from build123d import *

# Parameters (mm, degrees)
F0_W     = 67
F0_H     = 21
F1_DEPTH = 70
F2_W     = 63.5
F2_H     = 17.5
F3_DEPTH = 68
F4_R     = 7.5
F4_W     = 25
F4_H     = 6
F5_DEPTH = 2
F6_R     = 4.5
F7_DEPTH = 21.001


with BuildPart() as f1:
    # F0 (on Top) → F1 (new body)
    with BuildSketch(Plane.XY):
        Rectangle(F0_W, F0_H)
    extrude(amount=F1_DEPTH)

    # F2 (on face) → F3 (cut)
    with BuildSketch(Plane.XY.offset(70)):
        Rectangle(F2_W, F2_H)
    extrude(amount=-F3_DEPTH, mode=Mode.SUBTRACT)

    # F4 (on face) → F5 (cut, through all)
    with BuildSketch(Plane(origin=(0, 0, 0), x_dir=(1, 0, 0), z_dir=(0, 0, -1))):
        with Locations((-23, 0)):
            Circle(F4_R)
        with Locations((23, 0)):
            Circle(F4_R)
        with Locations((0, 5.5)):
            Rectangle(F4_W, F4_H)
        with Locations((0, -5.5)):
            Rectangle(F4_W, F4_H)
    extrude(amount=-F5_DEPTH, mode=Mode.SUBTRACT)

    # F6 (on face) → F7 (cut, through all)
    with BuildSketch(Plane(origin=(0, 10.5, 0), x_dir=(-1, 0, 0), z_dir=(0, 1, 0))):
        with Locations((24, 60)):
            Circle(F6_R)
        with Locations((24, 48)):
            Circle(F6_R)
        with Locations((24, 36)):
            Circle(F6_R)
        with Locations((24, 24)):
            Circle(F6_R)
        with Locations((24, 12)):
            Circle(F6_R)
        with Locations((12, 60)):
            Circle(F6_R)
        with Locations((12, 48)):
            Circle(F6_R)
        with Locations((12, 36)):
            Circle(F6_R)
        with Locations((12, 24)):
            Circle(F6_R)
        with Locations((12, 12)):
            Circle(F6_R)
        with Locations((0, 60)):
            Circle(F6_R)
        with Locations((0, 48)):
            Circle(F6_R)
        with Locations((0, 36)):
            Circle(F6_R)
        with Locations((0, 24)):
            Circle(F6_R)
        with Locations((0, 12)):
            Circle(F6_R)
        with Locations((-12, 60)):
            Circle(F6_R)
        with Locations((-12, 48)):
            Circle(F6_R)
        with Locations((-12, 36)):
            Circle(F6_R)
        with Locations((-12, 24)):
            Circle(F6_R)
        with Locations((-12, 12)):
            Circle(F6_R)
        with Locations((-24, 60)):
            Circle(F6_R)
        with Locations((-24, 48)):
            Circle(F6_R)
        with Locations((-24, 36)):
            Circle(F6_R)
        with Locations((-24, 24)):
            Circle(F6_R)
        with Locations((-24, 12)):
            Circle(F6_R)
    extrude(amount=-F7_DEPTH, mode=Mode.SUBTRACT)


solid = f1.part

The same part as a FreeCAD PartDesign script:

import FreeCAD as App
import Part
import Sketcher
from FreeCAD import Vector
Q = App.Units.Quantity

doc = App.newDocument("Part")
params = doc.addObject("Spreadsheet::Sheet", "Params")
for row, (alias, value) in enumerate([
    ("sketch1_width", "67 mm"),
    ("sketch1_height", "21 mm"),
    ("pad1_length", "70 mm"),
    ("sketch2_width", "63.5 mm"),
    ("sketch2_height", "17.5 mm"),
    ("pocket1_length", "68 mm"),
    ("sketch3_diameter", "15 mm"),
    ("sketch3_width", "25 mm"),
    ("sketch3_height", "6 mm"),
    ("sketch4_diameter", "9 mm"),
], start=1):
    params.set(f"A{row}", alias)
    params.set(f"B{row}", "=" + value)
    params.setAlias(f"B{row}", alias)

body = doc.addObject("PartDesign::Body", "Body")

# Sketch on XY plane
sketch1 = doc.addObject("Sketcher::SketchObject", "Sketch")
body.addObject(sketch1)
sketch1.AttachmentSupport = (doc.XY_Plane, [""])
sketch1.MapMode = "FlatFace"
sketch1.addGeometry(Part.LineSegment(Vector(-34, 10, 0), Vector(-34, -10, 0)), False)
sketch1.addGeometry(Part.LineSegment(Vector(-34, -10, 0), Vector(34, -10, 0)), False)
sketch1.addGeometry(Part.LineSegment(Vector(34, -10, 0), Vector(34, 10, 0)), False)
sketch1.addGeometry(Part.LineSegment(Vector(34, 10, 0), Vector(-34, 10, 0)), False)
sketch1.addConstraint(Sketcher.Constraint("Coincident", 0, 2, 1, 1))
sketch1.addConstraint(Sketcher.Constraint("Coincident", 1, 2, 2, 1))
sketch1.addConstraint(Sketcher.Constraint("Coincident", 2, 2, 3, 1))
sketch1.addConstraint(Sketcher.Constraint("Coincident", 3, 2, 0, 1))
sketch1.addConstraint(Sketcher.Constraint("Vertical", 0))
sketch1.addConstraint(Sketcher.Constraint("Horizontal", 1))
sketch1.addConstraint(Sketcher.Constraint("Vertical", 2))
sketch1.addConstraint(Sketcher.Constraint("Horizontal", 3))
sketch1.addConstraint(Sketcher.Constraint("Symmetric", 0, 2, 2, 2, -1, 1))
sketch1.addConstraint(Sketcher.Constraint("DistanceX", 1, 1, 1, 2, Q("67 mm")))
sketch1.addConstraint(Sketcher.Constraint("DistanceY", 0, 2, 0, 1, Q("21 mm")))
sketch1.setExpression("Constraints[9]", "Params.sketch1_width")
sketch1.setExpression("Constraints[10]", "Params.sketch1_height")
pad1 = doc.addObject("PartDesign::Pad", "Pad")
body.addObject(pad1)
pad1.Profile = sketch1
pad1.setExpression("Length", "Params.pad1_length")

# Sketch on XY plane
sketch2 = doc.addObject("Sketcher::SketchObject", "Sketch001")
body.addObject(sketch2)
sketch2.AttachmentSupport = (doc.XY_Plane, [""])
sketch2.MapMode = "FlatFace"
sketch2.AttachmentOffset = App.Placement(Vector(0, 0, 70), App.Rotation())
sketch2.addGeometry(Part.LineSegment(Vector(-32, 9, 0), Vector(-32, -9, 0)), False)
sketch2.addGeometry(Part.LineSegment(Vector(-32, -9, 0), Vector(32, -9, 0)), False)
sketch2.addGeometry(Part.LineSegment(Vector(32, -9, 0), Vector(32, 9, 0)), False)
sketch2.addGeometry(Part.LineSegment(Vector(32, 9, 0), Vector(-32, 9, 0)), False)
sketch2.addConstraint(Sketcher.Constraint("Coincident", 0, 2, 1, 1))
sketch2.addConstraint(Sketcher.Constraint("Coincident", 1, 2, 2, 1))
sketch2.addConstraint(Sketcher.Constraint("Coincident", 2, 2, 3, 1))
sketch2.addConstraint(Sketcher.Constraint("Coincident", 3, 2, 0, 1))
sketch2.addConstraint(Sketcher.Constraint("Vertical", 0))
sketch2.addConstraint(Sketcher.Constraint("Horizontal", 1))
sketch2.addConstraint(Sketcher.Constraint("Vertical", 2))
sketch2.addConstraint(Sketcher.Constraint("Horizontal", 3))
sketch2.addConstraint(Sketcher.Constraint("Symmetric", 0, 2, 2, 2, -1, 1))
sketch2.addConstraint(Sketcher.Constraint("DistanceX", 1, 1, 1, 2, Q("63.5 mm")))
sketch2.addConstraint(Sketcher.Constraint("DistanceY", 0, 2, 0, 1, Q("17.5 mm")))
sketch2.setExpression("Constraints[9]", "Params.sketch2_width")
sketch2.setExpression("Constraints[10]", "Params.sketch2_height")
pocket1 = doc.addObject("PartDesign::Pocket", "Pocket")
body.addObject(pocket1)
pocket1.Profile = sketch2
pocket1.setExpression("Length", "Params.pocket1_length")

# Sketch on XY plane
sketch3 = doc.addObject("Sketcher::SketchObject", "Sketch002")
body.addObject(sketch3)
sketch3.AttachmentSupport = (doc.XY_Plane, [""])
sketch3.MapMode = "FlatFace"
sketch3.addGeometry(Part.Circle(Vector(-23, 0, 0), Vector(0, 0, 1), 8), False)
sketch3.addGeometry(Part.Circle(Vector(23, 0, 0), Vector(0, 0, 1), 8), False)
sketch3.addGeometry(Part.LineSegment(Vector(-12, -8, 0), Vector(-12, -2, 0)), False)
sketch3.addGeometry(Part.LineSegment(Vector(-12, -2, 0), Vector(12, -2, 0)), False)
sketch3.addGeometry(Part.LineSegment(Vector(12, -2, 0), Vector(12, -8, 0)), False)
sketch3.addGeometry(Part.LineSegment(Vector(12, -8, 0), Vector(-12, -8, 0)), False)
sketch3.addGeometry(Part.LineSegment(Vector(-12, 2, 0), Vector(-12, 8, 0)), False)
sketch3.addGeometry(Part.LineSegment(Vector(-12, 8, 0), Vector(12, 8, 0)), False)
sketch3.addGeometry(Part.LineSegment(Vector(12, 8, 0), Vector(12, 2, 0)), False)
sketch3.addGeometry(Part.LineSegment(Vector(12, 2, 0), Vector(-12, 2, 0)), False)
sketch3.addConstraint(Sketcher.Constraint("Coincident", 2, 2, 3, 1))
sketch3.addConstraint(Sketcher.Constraint("Coincident", 3, 2, 4, 1))
sketch3.addConstraint(Sketcher.Constraint("Coincident", 4, 2, 5, 1))
sketch3.addConstraint(Sketcher.Constraint("Coincident", 5, 2, 2, 1))
sketch3.addConstraint(Sketcher.Constraint("Coincident", 6, 2, 7, 1))
sketch3.addConstraint(Sketcher.Constraint("Coincident", 7, 2, 8, 1))
sketch3.addConstraint(Sketcher.Constraint("Coincident", 8, 2, 9, 1))
sketch3.addConstraint(Sketcher.Constraint("Coincident", 9, 2, 6, 1))
sketch3.addConstraint(Sketcher.Constraint("Vertical", 2))
sketch3.addConstraint(Sketcher.Constraint("Horizontal", 3))
sketch3.addConstraint(Sketcher.Constraint("Vertical", 4))
sketch3.addConstraint(Sketcher.Constraint("Horizontal", 5))
sketch3.addConstraint(Sketcher.Constraint("Vertical", 6))
sketch3.addConstraint(Sketcher.Constraint("Horizontal", 7))
sketch3.addConstraint(Sketcher.Constraint("Vertical", 8))
sketch3.addConstraint(Sketcher.Constraint("Horizontal", 9))
sketch3.addConstraint(Sketcher.Constraint("Equal", 0, 1))
sketch3.addConstraint(Sketcher.Constraint("Symmetric", 0, 3, 1, 3, -1, 1))
sketch3.addConstraint(Sketcher.Constraint("Symmetric", 4, 2, 6, 2, -1, 1))
sketch3.addConstraint(Sketcher.Constraint("Symmetric", 2, 2, 8, 2, -1, 1))
sketch3.addConstraint(Sketcher.Constraint("PointOnObject", 0, 3, -1))
sketch3.addConstraint(Sketcher.Constraint("Vertical", 5, 2, 6, 2))
sketch3.addConstraint(Sketcher.Constraint("Diameter", 0, Q("15 mm")))
sketch3.addConstraint(Sketcher.Constraint("DistanceX", 3, 1, 3, 2, Q("25 mm")))
sketch3.addConstraint(Sketcher.Constraint("DistanceY", 2, 1, 2, 2, Q("6 mm")))
sketch3.addConstraint(Sketcher.Constraint("DistanceX", 0, 3, -1, 1, Q("23 mm")))
sketch3.addConstraint(Sketcher.Constraint("DistanceY", 2, 2, 6, 2, Q("11 mm")))
sketch3.setExpression("Constraints[22]", "Params.sketch3_diameter")
sketch3.setExpression("Constraints[23]", "Params.sketch3_width")
sketch3.setExpression("Constraints[24]", "Params.sketch3_height")
pocket2 = doc.addObject("PartDesign::Pocket", "Pocket001")
body.addObject(pocket2)
pocket2.Profile = sketch3
pocket2.Type = "ThroughAll"
pocket2.Reversed = True

# Sketch on XZ plane
sketch4 = doc.addObject("Sketcher::SketchObject", "Sketch003")
body.addObject(sketch4)
sketch4.AttachmentSupport = (doc.XZ_Plane, [""])
sketch4.MapMode = "FlatFace"
sketch4.AttachmentOffset = App.Placement(Vector(0, 0, -10.5), App.Rotation())
sketch4.addGeometry(Part.Circle(Vector(-24, 60, 0), Vector(0, 0, 1), 4.5), False)
sketch4.addGeometry(Part.Circle(Vector(-24, 48, 0), Vector(0, 0, 1), 4.5), False)
sketch4.addGeometry(Part.Circle(Vector(-24, 36, 0), Vector(0, 0, 1), 4.5), False)
sketch4.addGeometry(Part.Circle(Vector(-24, 24, 0), Vector(0, 0, 1), 4.5), False)
sketch4.addGeometry(Part.Circle(Vector(-24, 12, 0), Vector(0, 0, 1), 4.5), False)
sketch4.addGeometry(Part.Circle(Vector(-12, 60, 0), Vector(0, 0, 1), 4.5), False)
sketch4.addGeometry(Part.Circle(Vector(-12, 48, 0), Vector(0, 0, 1), 4.5), False)
sketch4.addGeometry(Part.Circle(Vector(-12, 36, 0), Vector(0, 0, 1), 4.5), False)
sketch4.addGeometry(Part.Circle(Vector(-12, 24, 0), Vector(0, 0, 1), 4.5), False)
sketch4.addGeometry(Part.Circle(Vector(-12, 12, 0), Vector(0, 0, 1), 4.5), False)
sketch4.addGeometry(Part.Circle(Vector(0, 60, 0), Vector(0, 0, 1), 4.5), False)
sketch4.addGeometry(Part.Circle(Vector(0, 48, 0), Vector(0, 0, 1), 4.5), False)
sketch4.addGeometry(Part.Circle(Vector(0, 36, 0), Vector(0, 0, 1), 4.5), False)
sketch4.addGeometry(Part.Circle(Vector(0, 24, 0), Vector(0, 0, 1), 4.5), False)
sketch4.addGeometry(Part.Circle(Vector(0, 12, 0), Vector(0, 0, 1), 4.5), False)
sketch4.addGeometry(Part.Circle(Vector(12, 60, 0), Vector(0, 0, 1), 4.5), False)
sketch4.addGeometry(Part.Circle(Vector(12, 48, 0), Vector(0, 0, 1), 4.5), False)
sketch4.addGeometry(Part.Circle(Vector(12, 36, 0), Vector(0, 0, 1), 4.5), False)
sketch4.addGeometry(Part.Circle(Vector(12, 24, 0), Vector(0, 0, 1), 4.5), False)
sketch4.addGeometry(Part.Circle(Vector(12, 12, 0), Vector(0, 0, 1), 4.5), False)
sketch4.addGeometry(Part.Circle(Vector(24, 60, 0), Vector(0, 0, 1), 4.5), False)
sketch4.addGeometry(Part.Circle(Vector(24, 48, 0), Vector(0, 0, 1), 4.5), False)
sketch4.addGeometry(Part.Circle(Vector(24, 36, 0), Vector(0, 0, 1), 4.5), False)
sketch4.addGeometry(Part.Circle(Vector(24, 24, 0), Vector(0, 0, 1), 4.5), False)
sketch4.addGeometry(Part.Circle(Vector(24, 12, 0), Vector(0, 0, 1), 4.5), False)
sketch4.addConstraint(Sketcher.Constraint("Equal", 0, 1))
sketch4.addConstraint(Sketcher.Constraint("Equal", 1, 2))
sketch4.addConstraint(Sketcher.Constraint("Equal", 2, 3))
sketch4.addConstraint(Sketcher.Constraint("Equal", 3, 4))
sketch4.addConstraint(Sketcher.Constraint("Equal", 4, 5))
sketch4.addConstraint(Sketcher.Constraint("Equal", 5, 6))
sketch4.addConstraint(Sketcher.Constraint("Equal", 6, 7))
sketch4.addConstraint(Sketcher.Constraint("Equal", 7, 8))
sketch4.addConstraint(Sketcher.Constraint("Equal", 8, 9))
sketch4.addConstraint(Sketcher.Constraint("Equal", 9, 10))
sketch4.addConstraint(Sketcher.Constraint("Equal", 10, 11))
sketch4.addConstraint(Sketcher.Constraint("Equal", 11, 12))
sketch4.addConstraint(Sketcher.Constraint("Equal", 12, 13))
sketch4.addConstraint(Sketcher.Constraint("Equal", 13, 14))
sketch4.addConstraint(Sketcher.Constraint("Equal", 14, 15))
sketch4.addConstraint(Sketcher.Constraint("Equal", 15, 16))
sketch4.addConstraint(Sketcher.Constraint("Equal", 16, 17))
sketch4.addConstraint(Sketcher.Constraint("Equal", 17, 18))
sketch4.addConstraint(Sketcher.Constraint("Equal", 18, 19))
sketch4.addConstraint(Sketcher.Constraint("Equal", 19, 20))
sketch4.addConstraint(Sketcher.Constraint("Equal", 20, 21))
sketch4.addConstraint(Sketcher.Constraint("Equal", 21, 22))
sketch4.addConstraint(Sketcher.Constraint("Equal", 22, 23))
sketch4.addConstraint(Sketcher.Constraint("Equal", 23, 24))
sketch4.addConstraint(Sketcher.Constraint("Symmetric", 5, 3, 15, 3, -2))
sketch4.addConstraint(Sketcher.Constraint("Symmetric", 6, 3, 16, 3, -2))
sketch4.addConstraint(Sketcher.Constraint("Symmetric", 7, 3, 17, 3, -2))
sketch4.addConstraint(Sketcher.Constraint("Symmetric", 8, 3, 18, 3, -2))
sketch4.addConstraint(Sketcher.Constraint("Symmetric", 9, 3, 19, 3, -2))
sketch4.addConstraint(Sketcher.Constraint("Symmetric", 0, 3, 20, 3, -2))
sketch4.addConstraint(Sketcher.Constraint("Symmetric", 1, 3, 21, 3, -2))
sketch4.addConstraint(Sketcher.Constraint("Symmetric", 2, 3, 22, 3, -2))
sketch4.addConstraint(Sketcher.Constraint("Symmetric", 3, 3, 23, 3, -2))
sketch4.addConstraint(Sketcher.Constraint("Symmetric", 4, 3, 24, 3, -2))
sketch4.addConstraint(Sketcher.Constraint("PointOnObject", 10, 3, -2))
sketch4.addConstraint(Sketcher.Constraint("PointOnObject", 11, 3, -2))
sketch4.addConstraint(Sketcher.Constraint("PointOnObject", 12, 3, -2))
sketch4.addConstraint(Sketcher.Constraint("PointOnObject", 13, 3, -2))
sketch4.addConstraint(Sketcher.Constraint("PointOnObject", 14, 3, -2))
sketch4.addConstraint(Sketcher.Constraint("Horizontal", 0, 3, 5, 3))
sketch4.addConstraint(Sketcher.Constraint("Horizontal", 1, 3, 6, 3))
sketch4.addConstraint(Sketcher.Constraint("Horizontal", 2, 3, 7, 3))
sketch4.addConstraint(Sketcher.Constraint("Horizontal", 3, 3, 8, 3))
sketch4.addConstraint(Sketcher.Constraint("Horizontal", 4, 3, 9, 3))
sketch4.addConstraint(Sketcher.Constraint("Horizontal", 5, 3, 10, 3))
sketch4.addConstraint(Sketcher.Constraint("Horizontal", 6, 3, 11, 3))
sketch4.addConstraint(Sketcher.Constraint("Horizontal", 7, 3, 12, 3))
sketch4.addConstraint(Sketcher.Constraint("Horizontal", 8, 3, 13, 3))
sketch4.addConstraint(Sketcher.Constraint("Horizontal", 9, 3, 14, 3))
sketch4.addConstraint(Sketcher.Constraint("Vertical", 0, 3, 1, 3))
sketch4.addConstraint(Sketcher.Constraint("Vertical", 1, 3, 2, 3))
sketch4.addConstraint(Sketcher.Constraint("Vertical", 2, 3, 3, 3))
sketch4.addConstraint(Sketcher.Constraint("Vertical", 3, 3, 4, 3))
sketch4.addConstraint(Sketcher.Constraint("Vertical", 5, 3, 6, 3))
sketch4.addConstraint(Sketcher.Constraint("Vertical", 6, 3, 7, 3))
sketch4.addConstraint(Sketcher.Constraint("Vertical", 7, 3, 8, 3))
sketch4.addConstraint(Sketcher.Constraint("Vertical", 8, 3, 9, 3))
sketch4.addConstraint(Sketcher.Constraint("Diameter", 0, Q("9 mm")))
sketch4.addConstraint(Sketcher.Constraint("DistanceX", 0, 3, -1, 1, Q("24 mm")))
sketch4.addConstraint(Sketcher.Constraint("DistanceY", -1, 1, 0, 3, Q("60 mm")))
sketch4.addConstraint(Sketcher.Constraint("DistanceY", -1, 1, 1, 3, Q("48 mm")))
sketch4.addConstraint(Sketcher.Constraint("DistanceY", -1, 1, 2, 3, Q("36 mm")))
sketch4.addConstraint(Sketcher.Constraint("DistanceY", -1, 1, 3, 3, Q("24 mm")))
sketch4.addConstraint(Sketcher.Constraint("DistanceY", -1, 1, 4, 3, Q("12 mm")))
sketch4.addConstraint(Sketcher.Constraint("DistanceX", 5, 3, -1, 1, Q("12 mm")))
sketch4.setExpression("Constraints[57]", "Params.sketch4_diameter")
pocket3 = doc.addObject("PartDesign::Pocket", "Pocket002")
body.addObject(pocket3)
pocket3.Profile = sketch4
pocket3.Type = "ThroughAll"
pocket3.Reversed = True

doc.recompute()
